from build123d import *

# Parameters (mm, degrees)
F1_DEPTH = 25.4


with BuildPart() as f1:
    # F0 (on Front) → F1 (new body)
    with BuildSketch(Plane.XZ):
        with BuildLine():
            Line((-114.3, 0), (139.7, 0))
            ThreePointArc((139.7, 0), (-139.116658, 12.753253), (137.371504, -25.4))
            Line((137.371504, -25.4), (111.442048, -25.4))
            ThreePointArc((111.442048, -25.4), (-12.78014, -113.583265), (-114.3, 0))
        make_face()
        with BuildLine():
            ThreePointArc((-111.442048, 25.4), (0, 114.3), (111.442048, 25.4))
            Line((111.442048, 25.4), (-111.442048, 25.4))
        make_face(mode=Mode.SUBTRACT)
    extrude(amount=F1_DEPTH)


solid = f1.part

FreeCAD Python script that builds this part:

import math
import FreeCAD as App
import Part
import Sketcher

V = App.Vector
Q = App.Units.Quantity

doc = App.newDocument("Part")
body = doc.addObject("PartDesign::Body", "Body")

sketch1 = doc.addObject("Sketcher::SketchObject", "Sketch")
body.addObject(sketch1)
sketch1.AttachmentSupport = (doc.XZ_Plane, [""])
sketch1.MapMode = "FlatFace"
sketch1.addGeometry([
    Part.LineSegment(V(-114, 0, 0), V(140, 0, 0)),
    Part.ArcOfCircle(Part.Circle(V(0, 0, 0), V(0, 0, 1), 140), math.radians(0), math.radians(350)),
    Part.LineSegment(V(137, -25, 0), V(111, -25, 0)),
    Part.ArcOfCircle(Part.Circle(V(0, 0, 0), V(0, 0, 1), 114), math.radians(180), math.radians(347)),
    Part.LineSegment(V(111, 25, 0), V(-111, 25, 0)),
    Part.ArcOfCircle(Part.Circle(V(0, 0, 0), V(0, 0, 1), 114), math.radians(13), math.radians(167)),
], False)
sketch1.addConstraint([
    Sketcher.Constraint("Coincident", 0, 2, 1, 1),
    Sketcher.Constraint("Coincident", 1, 2, 2, 1),
    Sketcher.Constraint("Coincident", 2, 2, 3, 2),
    Sketcher.Constraint("Coincident", 3, 1, 0, 1),
    Sketcher.Constraint("Coincident", 4, 1, 5, 1),
    Sketcher.Constraint("Coincident", 5, 2, 4, 2),
    Sketcher.Constraint("Horizontal", 0),
    Sketcher.Constraint("Horizontal", 2),
    Sketcher.Constraint("Horizontal", 4),
    Sketcher.Constraint("Coincident", 1, 3, -1, 1),
    Sketcher.Constraint("Coincident", 3, 3, -1, 1),
    Sketcher.Constraint("Coincident", 5, 3, -1, 1),
    Sketcher.Constraint("Equal", 3, 5),
    Sketcher.Constraint("PointOnObject", 0, 2, -1),
    Sketcher.Constraint("Vertical", 2, 2, 4, 1),
    Sketcher.Constraint("Radius", 1, Q("5.5 in")),
    Sketcher.Constraint("Radius", 3, Q("4.5 in")),
    Sketcher.Constraint("DistanceY", 1, 2, -1, 1, Q("1 in")),
])
pad1 = doc.addObject("PartDesign::Pad", "Pad")
body.addObject(pad1)
pad1.Profile = sketch1
pad1.Length = Q("1 in")

doc.recompute()
